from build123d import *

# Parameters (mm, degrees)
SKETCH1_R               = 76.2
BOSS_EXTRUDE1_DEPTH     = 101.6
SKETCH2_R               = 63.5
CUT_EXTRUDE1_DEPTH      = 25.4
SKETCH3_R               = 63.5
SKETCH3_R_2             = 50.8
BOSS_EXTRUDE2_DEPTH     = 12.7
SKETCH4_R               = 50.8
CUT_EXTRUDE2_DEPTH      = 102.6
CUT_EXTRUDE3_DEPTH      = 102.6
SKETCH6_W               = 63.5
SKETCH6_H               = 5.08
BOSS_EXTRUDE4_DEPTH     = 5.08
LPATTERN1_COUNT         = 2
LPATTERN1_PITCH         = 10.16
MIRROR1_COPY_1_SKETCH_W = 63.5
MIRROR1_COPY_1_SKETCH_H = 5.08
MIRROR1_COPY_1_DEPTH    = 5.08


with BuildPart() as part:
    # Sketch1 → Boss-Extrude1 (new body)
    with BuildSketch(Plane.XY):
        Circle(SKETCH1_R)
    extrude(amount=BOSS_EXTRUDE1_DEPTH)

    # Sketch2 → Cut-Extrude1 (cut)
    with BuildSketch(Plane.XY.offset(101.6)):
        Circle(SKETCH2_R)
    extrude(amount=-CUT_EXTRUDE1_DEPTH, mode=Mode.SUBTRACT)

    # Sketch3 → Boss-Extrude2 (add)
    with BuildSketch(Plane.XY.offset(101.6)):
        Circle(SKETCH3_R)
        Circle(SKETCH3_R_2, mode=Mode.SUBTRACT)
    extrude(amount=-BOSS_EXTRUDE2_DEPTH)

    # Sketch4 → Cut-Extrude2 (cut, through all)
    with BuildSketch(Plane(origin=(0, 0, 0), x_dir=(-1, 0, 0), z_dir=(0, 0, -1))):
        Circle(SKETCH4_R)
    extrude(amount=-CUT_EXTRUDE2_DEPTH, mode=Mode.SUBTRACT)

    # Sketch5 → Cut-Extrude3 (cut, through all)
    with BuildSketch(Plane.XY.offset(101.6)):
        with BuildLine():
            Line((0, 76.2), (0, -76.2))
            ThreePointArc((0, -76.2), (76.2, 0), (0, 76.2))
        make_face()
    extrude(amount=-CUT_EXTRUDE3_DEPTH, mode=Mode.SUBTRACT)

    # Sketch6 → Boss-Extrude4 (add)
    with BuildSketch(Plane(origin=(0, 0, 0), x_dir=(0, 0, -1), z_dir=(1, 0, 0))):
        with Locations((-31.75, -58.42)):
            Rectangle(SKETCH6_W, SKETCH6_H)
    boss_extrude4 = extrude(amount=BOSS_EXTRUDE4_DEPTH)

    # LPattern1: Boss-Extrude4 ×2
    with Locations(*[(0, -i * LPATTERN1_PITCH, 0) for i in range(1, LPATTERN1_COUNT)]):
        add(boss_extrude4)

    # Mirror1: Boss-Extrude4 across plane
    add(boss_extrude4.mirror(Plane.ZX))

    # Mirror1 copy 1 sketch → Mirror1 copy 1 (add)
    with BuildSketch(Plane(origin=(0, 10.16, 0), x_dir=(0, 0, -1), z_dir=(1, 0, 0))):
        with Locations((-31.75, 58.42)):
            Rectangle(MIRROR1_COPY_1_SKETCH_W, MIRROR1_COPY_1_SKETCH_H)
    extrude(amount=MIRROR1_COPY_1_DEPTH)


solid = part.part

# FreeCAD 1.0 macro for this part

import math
import FreeCAD as App
import Part
import Sketcher
Q = App.Units.Quantity

doc = App.newDocument("Part")
body = doc.addObject("PartDesign::Body", "Body")

# Sketch on XY plane
sketch1 = doc.addObject("Sketcher::SketchObject", "Sketch")
body.addObject(sketch1)
sketch1.AttachmentSupport = (doc.XY_Plane, [""])
sketch1.MapMode = "FlatFace"
sketch1.addGeometry(Part.Circle(App.Vector(0, 0, 0), App.Vector(0, 0, 1), 76), False)
sketch1.addConstraint(Sketcher.Constraint("Coincident", 0, 3, -1, 1))
sketch1.addConstraint(Sketcher.Constraint("Diameter", 0, Q("6 in")))
pad1 = doc.addObject("PartDesign::Pad", "Pad")
body.addObject(pad1)
pad1.Profile = sketch1
pad1.Length = Q("4 in")

# Sketch on XY plane
sketch2 = doc.addObject("Sketcher::SketchObject", "Sketch001")
body.addObject(sketch2)
sketch2.AttachmentSupport = (doc.XY_Plane, [""])
sketch2.MapMode = "FlatFace"
sketch2.AttachmentOffset = App.Placement(App.Vector(0, 0, 4 * 25.4), App.Rotation())
sketch2.addGeometry(Part.Circle(App.Vector(0, 0, 0), App.Vector(0, 0, 1), 64), False)
sketch2.addConstraint(Sketcher.Constraint("Coincident", 0, 3, -1, 1))
sketch2.addConstraint(Sketcher.Constraint("Diameter", 0, Q("5 in")))
pocket1 = doc.addObject("PartDesign::Pocket", "Pocket")
body.addObject(pocket1)
pocket1.Profile = sketch2
pocket1.Length = Q("1 in")

# Sketch on XY plane
sketch3 = doc.addObject("Sketcher::SketchObject", "Sketch002")
body.addObject(sketch3)
sketch3.AttachmentSupport = (doc.XY_Plane, [""])
sketch3.MapMode = "FlatFace"
sketch3.AttachmentOffset = App.Placement(App.Vector(0, 0, 4 * 25.4), App.Rotation())
sketch3.addGeometry(Part.Circle(App.Vector(0, 0, 0), App.Vector(0, 0, 1), 64), False)
sketch3.addGeometry(Part.Circle(App.Vector(0, 0, 0), App.Vector(0, 0, 1), 51), False)
sketch3.addConstraint(Sketcher.Constraint("Coincident", 0, 3, -1, 1))
sketch3.addConstraint(Sketcher.Constraint("Coincident", 1, 3, -1, 1))
sketch3.addConstraint(Sketcher.Constraint("Diameter", 0, Q("5 in")))
sketch3.addConstraint(Sketcher.Constraint("Diameter", 1, Q("4 in")))
pad2 = doc.addObject("PartDesign::Pad", "Pad001")
body.addObject(pad2)
pad2.Profile = sketch3
pad2.Length = Q("0.5 in")
pad2.Reversed = True

# Sketch on XY plane
sketch4 = doc.addObject("Sketcher::SketchObject", "Sketch003")
body.addObject(sketch4)
sketch4.AttachmentSupport = (doc.XY_Plane, [""])
sketch4.MapMode = "FlatFace"
sketch4.addGeometry(Part.Circle(App.Vector(0, 0, 0), App.Vector(0, 0, 1), 51), False)
sketch4.addConstraint(Sketcher.Constraint("Coincident", 0, 3, -1, 1))
sketch4.addConstraint(Sketcher.Constraint("Diameter", 0, Q("4 in")))
pocket2 = doc.addObject("PartDesign::Pocket", "Pocket001")
body.addObject(pocket2)
pocket2.Profile = sketch4
pocket2.Type = "ThroughAll"
pocket2.Reversed = True

# Sketch on XY plane
sketch5 = doc.addObject("Sketcher::SketchObject", "Sketch004")
body.addObject(sketch5)
sketch5.AttachmentSupport = (doc.XY_Plane, [""])
sketch5.MapMode = "FlatFace"
sketch5.AttachmentOffset = App.Placement(App.Vector(0, 0, 4 * 25.4), App.Rotation())
sketch5.addGeometry(Part.LineSegment(App.Vector(0, 76, 0), App.Vector(0, -76, 0)), False)
sketch5.addGeometry(Part.ArcOfCircle(Part.Circle(App.Vector(0, 0, 0), App.Vector(0, 0, 1), 76), math.radians(-90), math.radians(90)), False)
sketch5.addConstraint(Sketcher.Constraint("Coincident", 0, 1, 1, 2))
sketch5.addConstraint(Sketcher.Constraint("Coincident", 1, 1, 0, 2))
sketch5.addConstraint(Sketcher.Constraint("Vertical", 0))
sketch5.addConstraint(Sketcher.Constraint("Coincident", 1, 3, -1, 1))
sketch5.addConstraint(Sketcher.Constraint("PointOnObject", 0, 1, -2))
sketch5.addConstraint(Sketcher.Constraint("Radius", 1, Q("3 in")))
pocket3 = doc.addObject("PartDesign::Pocket", "Pocket002")
body.addObject(pocket3)
pocket3.Profile = sketch5
pocket3.Type = "ThroughAll"

# Sketch on YZ plane
sketch6 = doc.addObject("Sketcher::SketchObject", "Sketch005")
body.addObject(sketch6)
sketch6.AttachmentSupport = (doc.YZ_Plane, [""])
sketch6.MapMode = "FlatFace"
sketch6.addGeometry(Part.LineSegment(App.Vector(-56, 64, 0), App.Vector(-61, 64, 0)), False)
sketch6.addGeometry(Part.LineSegment(App.Vector(-61, 64, 0), App.Vector(-61, 0, 0)), False)
sketch6.addGeometry(Part.LineSegment(App.Vector(-61, 0, 0), App.Vector(-56, 0, 0)), False)
sketch6.addGeometry(Part.LineSegment(App.Vector(-56, 0, 0), App.Vector(-56, 64, 0)), False)
sketch6.addConstraint(Sketcher.Constraint("Coincident", 0, 2, 1, 1))
sketch6.addConstraint(Sketcher.Constraint("Coincident", 1, 2, 2, 1))
sketch6.addConstraint(Sketcher.Constraint("Coincident", 2, 2, 3, 1))
sketch6.addConstraint(Sketcher.Constraint("Coincident", 3, 2, 0, 1))
sketch6.addConstraint(Sketcher.Constraint("Horizontal", 0))
sketch6.addConstraint(Sketcher.Constraint("Vertical", 1))
sketch6.addConstraint(Sketcher.Constraint("Horizontal", 2))
sketch6.addConstraint(Sketcher.Constraint("Vertical", 3))
sketch6.addConstraint(Sketcher.Constraint("PointOnObject", 1, 2, -1))
sketch6.addConstraint(Sketcher.Constraint("DistanceX", 0, 2, 0, 1, Q("0.2 in")))
sketch6.addConstraint(Sketcher.Constraint("DistanceY", 1, 2, 1, 1, Q("2.5 in")))
sketch6.addConstraint(Sketcher.Constraint("DistanceX", 0, 2, -1, 1, Q("2.4 in")))
pad3 = doc.addObject("PartDesign::Pad", "Pad002")
body.addObject(pad3)
pad3.Profile = sketch6
pad3.Length = Q("0.2 in")
doc.recompute()

linearpattern = doc.addObject("PartDesign::LinearPattern", "LinearPattern")
body.addObject(linearpattern)
linearpattern.Originals = [pad3]
linearpattern.Direction = (doc.Y_Axis, [""])
linearpattern.Mode = "offset"
linearpattern.Offset = Q("0.4 in")
linearpattern.Occurrences = 2
linearpattern.Reversed = True
body.Tip = linearpattern
doc.recompute()

mirrored = doc.addObject("PartDesign::Mirrored", "Mirrored")
body.addObject(mirrored)
mirrored.Originals = [pad3]
mirrored.MirrorPlane = (doc.XZ_Plane, [""])
body.Tip = mirrored

# Sketch on YZ plane
sketch7 = doc.addObject("Sketcher::SketchObject", "Sketch006")
body.addObject(sketch7)
sketch7.AttachmentSupport = (doc.YZ_Plane, [""])
sketch7.MapMode = "FlatFace"
sketch7.addGeometry(Part.LineSegment(App.Vector(71, 64, 0), App.Vector(66, 64, 0)), False)
sketch7.addGeometry(Part.LineSegment(App.Vector(66, 64, 0), App.Vector(66, 0, 0)), False)
sketch7.addGeometry(Part.LineSegment(App.Vector(66, 0, 0), App.Vector(71, 0, 0)), False)
sketch7.addGeometry(Part.LineSegment(App.Vector(71, 0, 0), App.Vector(71, 64, 0)), False)
sketch7.addConstraint(Sketcher.Constraint("Coincident", 0, 2, 1, 1))
sketch7.addConstraint(Sketcher.Constraint("Coincident", 1, 2, 2, 1))
sketch7.addConstraint(Sketcher.Constraint("Coincident", 2, 2, 3, 1))
sketch7.addConstraint(Sketcher.Constraint("Coincident", 3, 2, 0, 1))
sketch7.addConstraint(Sketcher.Constraint("Horizontal", 0))
sketch7.addConstraint(Sketcher.Constraint("Vertical", 1))
sketch7.addConstraint(Sketcher.Constraint("Horizontal", 2))
sketch7.addConstraint(Sketcher.Constraint("Vertical", 3))
sketch7.addConstraint(Sketcher.Constraint("PointOnObject", 1, 2, -1))
sketch7.addConstraint(Sketcher.Constraint("DistanceX", 0, 2, 0, 1, Q("0.2 in")))
sketch7.addConstraint(Sketcher.Constraint("DistanceY", 1, 2, 1, 1, Q("2.5 in")))
sketch7.addConstraint(Sketcher.Constraint("DistanceX", -1, 1, 0, 2, Q("2.6 in")))
pad4 = doc.addObject("PartDesign::Pad", "Pad003")
body.addObject(pad4)
pad4.Profile = sketch7
pad4.Length = Q("0.2 in")

doc.recompute()
